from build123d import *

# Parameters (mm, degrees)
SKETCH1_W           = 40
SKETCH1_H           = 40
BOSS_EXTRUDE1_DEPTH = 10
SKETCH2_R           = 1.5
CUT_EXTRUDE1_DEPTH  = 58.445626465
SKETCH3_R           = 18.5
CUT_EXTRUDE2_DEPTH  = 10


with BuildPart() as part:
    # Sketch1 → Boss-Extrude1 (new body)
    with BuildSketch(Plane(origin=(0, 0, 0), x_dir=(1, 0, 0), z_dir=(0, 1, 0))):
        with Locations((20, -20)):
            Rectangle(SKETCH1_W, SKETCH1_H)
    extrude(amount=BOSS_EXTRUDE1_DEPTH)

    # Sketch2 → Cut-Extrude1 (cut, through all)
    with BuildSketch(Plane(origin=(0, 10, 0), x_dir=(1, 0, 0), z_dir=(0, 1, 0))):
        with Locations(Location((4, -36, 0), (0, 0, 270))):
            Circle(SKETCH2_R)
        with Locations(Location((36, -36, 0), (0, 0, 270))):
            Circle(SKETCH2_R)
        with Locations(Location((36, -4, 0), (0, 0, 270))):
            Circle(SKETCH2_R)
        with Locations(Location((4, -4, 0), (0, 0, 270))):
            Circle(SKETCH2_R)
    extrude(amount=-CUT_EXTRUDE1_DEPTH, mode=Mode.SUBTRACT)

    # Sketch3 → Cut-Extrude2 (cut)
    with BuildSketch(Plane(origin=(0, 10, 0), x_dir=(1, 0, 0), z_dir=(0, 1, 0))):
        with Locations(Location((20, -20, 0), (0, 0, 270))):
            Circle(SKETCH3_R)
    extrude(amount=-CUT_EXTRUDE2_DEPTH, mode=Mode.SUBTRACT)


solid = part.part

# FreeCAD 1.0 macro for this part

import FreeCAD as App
import Part
import Sketcher

V = App.Vector


def add_polygon(sketch, points):
    """Adds a closed chain of lines whose ends are joined by coincident constraints."""
    first, n = sketch.GeometryCount, len(points)
    for a, b in zip(points, points[1:] + points[:1]):
        sketch.addGeometry(Part.LineSegment(App.Vector(*a, 0), App.Vector(*b, 0)), False)
    for i in range(n):
        sketch.addConstraint(Sketcher.Constraint("Coincident", first + i, 2, first + (i + 1) % n, 1))

doc = App.newDocument("Part")
body = doc.addObject("PartDesign::Body", "Body")

# Sketch on XZ plane
sketch1 = body.newObject("Sketcher::SketchObject", "Sketch")
sketch1.AttachmentSupport = (doc.getObject("XZ_Plane"), [""])
sketch1.MapMode = "FlatFace"
add_polygon(sketch1, [(0, 0), (0, 40), (40, 40), (40, 0)])  # lines 0-3
sketch1.addConstraint([
    Sketcher.Constraint("Vertical", 0),
    Sketcher.Constraint("Horizontal", 1),
    Sketcher.Constraint("Vertical", 2),
    Sketcher.Constraint("Horizontal", 3),
    Sketcher.Constraint("Coincident", 3, 2, -1, 1),
    Sketcher.Constraint("Equal", 3, 0),
    Sketcher.Constraint("DistanceX", 1, 1, 1, 2, 40.0),
])
pad1 = body.newObject("PartDesign::Pad", "Pad")
pad1.Profile = sketch1
pad1.Length = 10
pad1.Reversed = True

# Sketch on XZ plane
sketch2 = body.newObject("Sketcher::SketchObject", "Sketch001")
sketch2.AttachmentSupport = (doc.getObject("XZ_Plane"), [""])
sketch2.MapMode = "FlatFace"
sketch2.AttachmentOffset = App.Placement(V(0, 0, -10), App.Rotation())
sketch2.addGeometry([
    Part.Circle(V(4, 36, 0), V(0, 0, 1), 1.5),
    Part.Circle(V(36, 36, 0), V(0, 0, 1), 1.5),
    Part.Circle(V(36, 4, 0), V(0, 0, 1), 1.5),
    Part.Circle(V(4, 4, 0), V(0, 0, 1), 1.5),
], False)
sketch2.addConstraint([
    Sketcher.Constraint("Equal", 0, 1),
    Sketcher.Constraint("Equal", 1, 2),
    Sketcher.Constraint("Equal", 2, 3),
    Sketcher.Constraint("Horizontal", 0, 3, 1, 3),
    Sketcher.Constraint("Horizontal", 2, 3, 3, 3),
    Sketcher.Constraint("Vertical", 1, 3, 2, 3),
    Sketcher.Constraint("Vertical", 0, 3, 3, 3),
    Sketcher.Constraint("Diameter", 0, 3.0),
    Sketcher.Constraint("DistanceX", -1, 1, 0, 3, 4.0),
    Sketcher.Constraint("DistanceY", -1, 1, 0, 3, 36.0),
    Sketcher.Constraint("DistanceX", -1, 1, 1, 3, 36.0),
    Sketcher.Constraint("DistanceY", -1, 1, 2, 3, 4.0),
])
pocket1 = body.newObject("PartDesign::Pocket", "Pocket")
pocket1.Profile = sketch2
pocket1.Type = "ThroughAll"
pocket1.Reversed = True

# Sketch on XZ plane
sketch3 = body.newObject("Sketcher::SketchObject", "Sketch002")
sketch3.AttachmentSupport = (doc.getObject("XZ_Plane"), [""])
sketch3.MapMode = "FlatFace"
sketch3.AttachmentOffset = App.Placement(V(0, 0, -10), App.Rotation())
sketch3.addGeometry(Part.Circle(V(20, 20, 0), V(0, 0, 1), 18), False)
sketch3.addConstraint([
    Sketcher.Constraint("Diameter", 0, 37.0),
    Sketcher.Constraint("DistanceX", -1, 1, 0, 3, 20.0),
    Sketcher.Constraint("DistanceY", -1, 1, 0, 3, 20.0),
])
pocket2 = body.newObject("PartDesign::Pocket", "Pocket001")
pocket2.Profile = sketch3
pocket2.Length = 10
pocket2.Reversed = True

doc.recompute()
